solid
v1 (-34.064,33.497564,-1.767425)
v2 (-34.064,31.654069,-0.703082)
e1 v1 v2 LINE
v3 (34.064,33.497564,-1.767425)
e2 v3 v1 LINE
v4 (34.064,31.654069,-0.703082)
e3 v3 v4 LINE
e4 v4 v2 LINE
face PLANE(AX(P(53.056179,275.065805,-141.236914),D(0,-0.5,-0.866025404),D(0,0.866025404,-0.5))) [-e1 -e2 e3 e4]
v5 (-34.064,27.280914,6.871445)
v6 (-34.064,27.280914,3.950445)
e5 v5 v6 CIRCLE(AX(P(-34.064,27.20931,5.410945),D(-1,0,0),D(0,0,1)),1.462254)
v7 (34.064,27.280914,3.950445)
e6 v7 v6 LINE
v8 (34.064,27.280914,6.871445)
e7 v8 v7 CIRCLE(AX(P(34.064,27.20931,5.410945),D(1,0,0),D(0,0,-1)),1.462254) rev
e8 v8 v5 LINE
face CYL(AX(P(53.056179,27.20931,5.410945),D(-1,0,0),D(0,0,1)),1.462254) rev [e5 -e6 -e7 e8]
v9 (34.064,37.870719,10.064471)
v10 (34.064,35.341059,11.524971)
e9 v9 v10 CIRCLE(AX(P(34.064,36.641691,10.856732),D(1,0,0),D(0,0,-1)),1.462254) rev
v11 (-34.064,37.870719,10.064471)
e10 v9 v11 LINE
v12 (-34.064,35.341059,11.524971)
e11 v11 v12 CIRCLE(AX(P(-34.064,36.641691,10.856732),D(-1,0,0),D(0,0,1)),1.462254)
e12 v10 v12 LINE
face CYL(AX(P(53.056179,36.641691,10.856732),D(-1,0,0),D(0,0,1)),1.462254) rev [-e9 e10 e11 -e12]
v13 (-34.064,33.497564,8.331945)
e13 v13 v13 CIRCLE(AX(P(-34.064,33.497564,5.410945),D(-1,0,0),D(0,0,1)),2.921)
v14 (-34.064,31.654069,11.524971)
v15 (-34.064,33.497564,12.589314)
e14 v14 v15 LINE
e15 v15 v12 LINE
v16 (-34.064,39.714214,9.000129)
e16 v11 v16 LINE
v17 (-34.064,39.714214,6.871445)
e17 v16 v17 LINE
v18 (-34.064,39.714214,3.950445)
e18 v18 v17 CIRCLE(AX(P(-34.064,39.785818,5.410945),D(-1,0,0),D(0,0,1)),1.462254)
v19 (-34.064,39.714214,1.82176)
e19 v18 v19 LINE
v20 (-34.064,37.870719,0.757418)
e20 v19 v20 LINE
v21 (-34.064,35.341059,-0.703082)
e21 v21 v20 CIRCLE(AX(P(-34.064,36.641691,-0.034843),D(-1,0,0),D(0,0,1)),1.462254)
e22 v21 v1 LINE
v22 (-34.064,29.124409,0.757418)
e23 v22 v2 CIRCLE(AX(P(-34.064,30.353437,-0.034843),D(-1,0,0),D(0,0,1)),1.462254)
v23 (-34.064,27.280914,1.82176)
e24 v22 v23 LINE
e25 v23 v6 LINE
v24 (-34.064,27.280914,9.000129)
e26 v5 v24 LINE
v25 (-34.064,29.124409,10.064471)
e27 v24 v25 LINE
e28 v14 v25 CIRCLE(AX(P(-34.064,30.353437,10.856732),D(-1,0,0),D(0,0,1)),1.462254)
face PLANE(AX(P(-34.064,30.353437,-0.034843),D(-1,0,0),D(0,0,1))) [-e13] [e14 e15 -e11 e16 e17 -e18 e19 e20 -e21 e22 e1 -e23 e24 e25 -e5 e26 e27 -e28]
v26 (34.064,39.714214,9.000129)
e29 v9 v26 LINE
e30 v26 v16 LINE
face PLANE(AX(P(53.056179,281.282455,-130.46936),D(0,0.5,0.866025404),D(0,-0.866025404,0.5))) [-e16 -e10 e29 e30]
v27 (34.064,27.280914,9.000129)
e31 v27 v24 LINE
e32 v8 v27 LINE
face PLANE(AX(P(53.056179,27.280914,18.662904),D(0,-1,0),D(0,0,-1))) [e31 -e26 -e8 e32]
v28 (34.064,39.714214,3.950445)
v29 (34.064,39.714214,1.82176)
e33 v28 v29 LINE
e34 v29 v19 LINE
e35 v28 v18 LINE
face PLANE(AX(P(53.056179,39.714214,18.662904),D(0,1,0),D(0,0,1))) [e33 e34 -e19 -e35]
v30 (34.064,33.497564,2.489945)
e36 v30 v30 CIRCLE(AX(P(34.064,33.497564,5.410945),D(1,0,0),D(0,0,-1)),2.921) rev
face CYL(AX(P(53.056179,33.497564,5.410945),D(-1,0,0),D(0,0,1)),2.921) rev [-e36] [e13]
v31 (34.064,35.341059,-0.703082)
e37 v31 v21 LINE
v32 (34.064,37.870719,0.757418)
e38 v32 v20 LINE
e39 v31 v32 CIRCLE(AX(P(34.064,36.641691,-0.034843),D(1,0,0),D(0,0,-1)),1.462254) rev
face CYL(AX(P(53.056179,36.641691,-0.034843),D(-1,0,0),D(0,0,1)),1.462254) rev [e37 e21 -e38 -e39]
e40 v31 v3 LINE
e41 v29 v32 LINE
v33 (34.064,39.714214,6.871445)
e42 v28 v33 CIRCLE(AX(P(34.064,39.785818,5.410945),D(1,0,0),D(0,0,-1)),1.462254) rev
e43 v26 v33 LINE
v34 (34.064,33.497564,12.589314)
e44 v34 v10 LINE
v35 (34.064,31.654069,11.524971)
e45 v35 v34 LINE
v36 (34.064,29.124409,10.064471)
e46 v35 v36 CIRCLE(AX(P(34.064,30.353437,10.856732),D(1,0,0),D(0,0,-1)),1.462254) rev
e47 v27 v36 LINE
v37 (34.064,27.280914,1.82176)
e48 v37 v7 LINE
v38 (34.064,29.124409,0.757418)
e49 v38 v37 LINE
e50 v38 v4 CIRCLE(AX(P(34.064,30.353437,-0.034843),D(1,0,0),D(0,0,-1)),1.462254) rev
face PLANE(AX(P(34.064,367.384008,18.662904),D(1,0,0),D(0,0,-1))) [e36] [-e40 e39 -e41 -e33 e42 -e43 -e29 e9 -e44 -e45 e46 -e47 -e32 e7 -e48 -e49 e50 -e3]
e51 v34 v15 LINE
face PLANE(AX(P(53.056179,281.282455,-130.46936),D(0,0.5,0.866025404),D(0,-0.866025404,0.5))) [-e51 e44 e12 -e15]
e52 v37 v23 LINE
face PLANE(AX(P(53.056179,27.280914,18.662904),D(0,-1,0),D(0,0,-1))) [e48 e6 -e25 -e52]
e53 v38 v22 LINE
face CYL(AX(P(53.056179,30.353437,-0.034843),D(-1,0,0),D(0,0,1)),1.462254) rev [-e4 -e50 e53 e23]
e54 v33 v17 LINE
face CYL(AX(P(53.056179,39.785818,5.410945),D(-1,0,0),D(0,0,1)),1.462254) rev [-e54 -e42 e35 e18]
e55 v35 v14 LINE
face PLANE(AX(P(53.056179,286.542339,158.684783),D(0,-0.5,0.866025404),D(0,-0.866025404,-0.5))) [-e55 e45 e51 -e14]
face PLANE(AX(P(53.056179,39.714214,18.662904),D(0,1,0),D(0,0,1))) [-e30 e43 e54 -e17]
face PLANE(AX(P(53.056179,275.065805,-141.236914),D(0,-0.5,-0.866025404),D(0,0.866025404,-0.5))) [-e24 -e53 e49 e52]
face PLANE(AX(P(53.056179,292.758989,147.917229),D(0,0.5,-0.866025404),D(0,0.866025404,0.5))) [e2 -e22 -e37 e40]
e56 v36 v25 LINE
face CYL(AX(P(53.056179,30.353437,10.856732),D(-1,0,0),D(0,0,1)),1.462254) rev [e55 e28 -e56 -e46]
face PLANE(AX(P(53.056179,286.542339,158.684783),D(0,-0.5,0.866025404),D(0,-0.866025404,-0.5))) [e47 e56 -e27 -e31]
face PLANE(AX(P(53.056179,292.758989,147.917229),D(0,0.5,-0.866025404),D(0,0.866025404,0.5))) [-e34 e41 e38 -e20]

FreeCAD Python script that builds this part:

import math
import FreeCAD as App
import Part
import Sketcher
Q = App.Units.Quantity

doc = App.newDocument("Part")
body = doc.addObject("PartDesign::Body", "Body")

sketch1 = doc.addObject("Sketcher::SketchObject", "Sketch")
body.addObject(sketch1)
sketch1.AttachmentSupport = (doc.YZ_Plane, [""])
sketch1.MapMode = "FlatFace"
sketch1.AttachmentOffset = App.Placement(App.Vector(0, 0, -34.064), App.Rotation())
sketch1.addGeometry([
    Part.LineSegment(App.Vector(39.7, 1.8, 0), App.Vector(39.7, 4, 0)),
    Part.ArcOfCircle(Part.Circle(App.Vector(39.8, 5.4, 0), App.Vector(0, 0, 1), 1.5), math.radians(93), math.radians(267)),
    Part.LineSegment(App.Vector(39.7, 6.9, 0), App.Vector(39.7, 9, 0)),
    Part.LineSegment(App.Vector(39.7, 9, 0), App.Vector(37.9, 10.1, 0)),
    Part.ArcOfCircle(Part.Circle(App.Vector(36.6, 10.9, 0), App.Vector(0, 0, 1), 1.5), math.radians(153), math.radians(327)),
    Part.LineSegment(App.Vector(35.3, 11.5, 0), App.Vector(33.5, 12.6, 0)),
    Part.LineSegment(App.Vector(33.5, 12.6, 0), App.Vector(31.7, 11.5, 0)),
    Part.ArcOfCircle(Part.Circle(App.Vector(30.4, 10.9, 0), App.Vector(0, 0, 1), 1.5), math.radians(-147), math.radians(27)),
    Part.LineSegment(App.Vector(29.1, 10.1, 0), App.Vector(27.3, 9, 0)),
    Part.LineSegment(App.Vector(27.3, 9, 0), App.Vector(27.3, 6.9, 0)),
    Part.ArcOfCircle(Part.Circle(App.Vector(27.2, 5.4, 0), App.Vector(0, 0, 1), 1.5), math.radians(-87), math.radians(87)),
    Part.LineSegment(App.Vector(27.3, 4, 0), App.Vector(27.3, 1.8, 0)),
    Part.LineSegment(App.Vector(27.3, 1.8, 0), App.Vector(29.1, 0.8, 0)),
    Part.ArcOfCircle(Part.Circle(App.Vector(30.4, 0, 0), App.Vector(0, 0, 1), 1.5), math.radians(-27), math.radians(147)),
    Part.LineSegment(App.Vector(31.7, -0.7, 0), App.Vector(33.5, -1.8, 0)),
    Part.LineSegment(App.Vector(33.5, -1.8, 0), App.Vector(35.3, -0.7, 0)),
    Part.ArcOfCircle(Part.Circle(App.Vector(36.6, 0, 0), App.Vector(0, 0, 1), 1.5), math.radians(33), math.radians(207)),
    Part.LineSegment(App.Vector(37.9, 0.8, 0), App.Vector(39.7, 1.8, 0)),
    Part.Circle(App.Vector(33.5, 5.4, 0), App.Vector(0, 0, 1), 2.9),
], False)
sketch1.addConstraint([
    Sketcher.Constraint("Coincident", 0, 2, 1, 2),
    Sketcher.Constraint("Coincident", 1, 1, 2, 1),
    Sketcher.Constraint("Coincident", 2, 2, 3, 1),
    Sketcher.Constraint("Coincident", 3, 2, 4, 2),
    Sketcher.Constraint("Coincident", 4, 1, 5, 1),
    Sketcher.Constraint("Coincident", 5, 2, 6, 1),
    Sketcher.Constraint("Coincident", 6, 2, 7, 2),
    Sketcher.Constraint("Coincident", 7, 1, 8, 1),
    Sketcher.Constraint("Coincident", 8, 2, 9, 1),
    Sketcher.Constraint("Coincident", 9, 2, 10, 2),
    Sketcher.Constraint("Coincident", 10, 1, 11, 1),
    Sketcher.Constraint("Coincident", 11, 2, 12, 1),
    Sketcher.Constraint("Coincident", 12, 2, 13, 2),
    Sketcher.Constraint("Coincident", 13, 1, 14, 1),
    Sketcher.Constraint("Coincident", 14, 2, 15, 1),
    Sketcher.Constraint("Coincident", 15, 2, 16, 2),
    Sketcher.Constraint("Coincident", 16, 1, 17, 1),
    Sketcher.Constraint("Coincident", 17, 2, 0, 1),
    Sketcher.Constraint("Vertical", 0),
    Sketcher.Constraint("Vertical", 2),
    Sketcher.Constraint("Vertical", 9),
    Sketcher.Constraint("Vertical", 11),
    Sketcher.Constraint("Equal", 1, 4),
    Sketcher.Constraint("Equal", 4, 7),
    Sketcher.Constraint("Equal", 7, 10),
    Sketcher.Constraint("Equal", 10, 13),
    Sketcher.Constraint("Equal", 13, 16),
    Sketcher.Constraint("Parallel", 3, 5),
    Sketcher.Constraint("Parallel", 6, 8),
    Sketcher.Constraint("Parallel", 5, 12),
    Sketcher.Constraint("Parallel", 12, 14),
    Sketcher.Constraint("Parallel", 8, 15),
    Sketcher.Constraint("Parallel", 15, 17),
    Sketcher.Constraint("Horizontal", 4, 3, 7, 3),
    Sketcher.Constraint("Horizontal", 1, 3, 10, 3),
    Sketcher.Constraint("Horizontal", 13, 3, 16, 3),
    Sketcher.Constraint("Horizontal", 10, 3, 18, 3),
    Sketcher.Constraint("Horizontal", 4, 1, 6, 2),
    Sketcher.Constraint("Horizontal", 3, 2, 7, 1),
    Sketcher.Constraint("Horizontal", 2, 2, 8, 2),
    Sketcher.Constraint("Horizontal", 1, 1, 9, 2),
    Sketcher.Constraint("Horizontal", 0, 2, 10, 1),
    Sketcher.Constraint("Horizontal", 13, 1, 15, 2),
    Sketcher.Constraint("Horizontal", 12, 2, 16, 1),
    Sketcher.Constraint("Horizontal", 11, 2, 17, 2),
    Sketcher.Constraint("Vertical", 7, 3, 13, 3),
    Sketcher.Constraint("Vertical", 4, 3, 16, 3),
    Sketcher.Constraint("Vertical", 0, 2, 1, 1),
    Sketcher.Constraint("Vertical", 18, 3, 5, 2),
    Sketcher.Constraint("Vertical", 7, 1, 12, 2),
    Sketcher.Constraint("Vertical", 6, 2, 13, 1),
    Sketcher.Constraint("Equal", 0, 2),
    Sketcher.Constraint("Equal", 3, 5),
    Sketcher.Constraint("Diameter", 18, Q("0.23 in")),
    Sketcher.Constraint("Angle", 3, Q("150 deg")),
    Sketcher.Constraint("DistanceY", 0, 2, 1, 1, Q("0.115 in")),
    Sketcher.Constraint("Radius", 1, 1.462254),
    Sketcher.Constraint("DistanceY", 3, 2, 4, 1, Q("0.0575 in")),
    Sketcher.Constraint("DistanceX", 3, 2, 1, 3, 1.915099),
    Sketcher.Constraint("DistanceY", 0, 1, 0, 2, 2.128685),
    Sketcher.Constraint("DistanceX", -1, 1, 1, 3, 39.785818),
    Sketcher.Constraint("DistanceX", -1, 1, 4, 3, 36.641691),
    Sketcher.Constraint("DistanceY", -1, 1, 2, 2, 9.000129),
])
pad1 = doc.addObject("PartDesign::Pad", "Pad")
body.addObject(pad1)
pad1.Profile = sketch1
pad1.Length = 68.128

doc.recompute()
